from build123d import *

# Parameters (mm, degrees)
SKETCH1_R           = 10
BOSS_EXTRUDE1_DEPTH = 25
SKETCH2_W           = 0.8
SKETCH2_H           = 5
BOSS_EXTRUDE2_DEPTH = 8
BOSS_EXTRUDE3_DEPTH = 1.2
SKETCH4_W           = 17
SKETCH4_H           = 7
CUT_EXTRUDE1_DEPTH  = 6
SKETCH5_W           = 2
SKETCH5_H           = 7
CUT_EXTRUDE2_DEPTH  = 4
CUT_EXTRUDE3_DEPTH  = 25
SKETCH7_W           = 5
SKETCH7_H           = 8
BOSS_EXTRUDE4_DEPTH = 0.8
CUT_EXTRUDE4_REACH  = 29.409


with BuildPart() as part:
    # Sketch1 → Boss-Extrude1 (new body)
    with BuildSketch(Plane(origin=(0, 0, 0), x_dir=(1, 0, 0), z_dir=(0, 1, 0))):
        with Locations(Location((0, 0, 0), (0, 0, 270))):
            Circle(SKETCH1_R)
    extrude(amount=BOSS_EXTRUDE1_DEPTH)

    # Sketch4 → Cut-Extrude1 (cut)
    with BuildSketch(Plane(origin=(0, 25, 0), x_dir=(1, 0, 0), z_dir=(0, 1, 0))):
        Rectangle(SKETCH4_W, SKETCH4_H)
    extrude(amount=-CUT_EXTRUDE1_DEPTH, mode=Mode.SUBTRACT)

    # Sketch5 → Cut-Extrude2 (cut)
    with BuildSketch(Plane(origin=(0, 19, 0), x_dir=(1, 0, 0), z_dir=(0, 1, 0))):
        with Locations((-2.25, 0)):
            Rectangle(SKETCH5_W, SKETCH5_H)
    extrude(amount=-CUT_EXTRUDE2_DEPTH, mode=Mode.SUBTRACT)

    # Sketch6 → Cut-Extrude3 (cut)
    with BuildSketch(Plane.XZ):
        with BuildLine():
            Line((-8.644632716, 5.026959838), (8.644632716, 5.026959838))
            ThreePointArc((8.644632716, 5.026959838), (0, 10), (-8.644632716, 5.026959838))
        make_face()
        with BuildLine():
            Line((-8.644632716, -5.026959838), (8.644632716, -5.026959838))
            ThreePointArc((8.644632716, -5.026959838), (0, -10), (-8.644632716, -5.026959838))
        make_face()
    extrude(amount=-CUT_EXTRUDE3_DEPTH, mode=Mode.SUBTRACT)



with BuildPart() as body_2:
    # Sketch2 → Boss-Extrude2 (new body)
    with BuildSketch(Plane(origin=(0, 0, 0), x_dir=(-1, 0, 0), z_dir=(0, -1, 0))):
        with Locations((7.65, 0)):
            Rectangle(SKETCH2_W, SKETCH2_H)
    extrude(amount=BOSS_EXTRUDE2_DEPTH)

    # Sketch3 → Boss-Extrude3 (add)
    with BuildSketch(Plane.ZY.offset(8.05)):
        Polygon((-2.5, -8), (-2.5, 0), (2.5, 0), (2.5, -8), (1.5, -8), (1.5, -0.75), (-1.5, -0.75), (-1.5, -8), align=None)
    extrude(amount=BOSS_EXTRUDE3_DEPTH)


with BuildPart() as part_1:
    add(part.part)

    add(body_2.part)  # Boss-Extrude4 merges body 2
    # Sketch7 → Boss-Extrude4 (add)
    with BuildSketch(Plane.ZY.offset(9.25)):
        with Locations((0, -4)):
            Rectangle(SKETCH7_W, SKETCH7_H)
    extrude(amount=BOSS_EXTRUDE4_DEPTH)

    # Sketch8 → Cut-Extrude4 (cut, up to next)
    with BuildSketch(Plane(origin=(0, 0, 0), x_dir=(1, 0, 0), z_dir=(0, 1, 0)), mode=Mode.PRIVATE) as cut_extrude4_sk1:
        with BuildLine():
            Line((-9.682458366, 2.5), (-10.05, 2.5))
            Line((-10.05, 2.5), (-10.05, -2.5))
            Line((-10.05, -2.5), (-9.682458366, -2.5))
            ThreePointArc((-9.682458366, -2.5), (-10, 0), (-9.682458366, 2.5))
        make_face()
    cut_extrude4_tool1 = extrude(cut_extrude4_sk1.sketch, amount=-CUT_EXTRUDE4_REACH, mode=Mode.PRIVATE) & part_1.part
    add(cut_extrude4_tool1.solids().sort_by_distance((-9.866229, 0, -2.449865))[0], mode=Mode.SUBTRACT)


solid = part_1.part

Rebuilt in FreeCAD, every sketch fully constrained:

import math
import FreeCAD as App
import Part
import Sketcher
Q = App.Units.Quantity


def add_polygon(sketch, points):
    """Adds a closed chain of lines whose ends are joined by coincident constraints."""
    first, n = sketch.GeometryCount, len(points)
    for a, b in zip(points, points[1:] + points[:1]):
        sketch.addGeometry(Part.LineSegment(App.Vector(*a, 0), App.Vector(*b, 0)), False)
    for i in range(n):
        sketch.addConstraint(Sketcher.Constraint("Coincident", first + i, 2, first + (i + 1) % n, 1))

doc = App.newDocument("Part")
body = doc.addObject("PartDesign::Body", "Body")

sketch1 = body.newObject("Sketcher::SketchObject", "Sketch")
sketch1.AttachmentSupport = (doc.getObject("XZ_Plane"), [""])
sketch1.MapMode = "FlatFace"
sketch1.addGeometry(Part.Circle(App.Vector(0, 0, 0), App.Vector(0, 0, 1), 10), False)
sketch1.addConstraint(Sketcher.Constraint("Coincident", 0, 3, -1, 1))
sketch1.addConstraint(Sketcher.Constraint("Diameter", 0, Q("20 mm")))
pad1 = body.newObject("PartDesign::Pad", "Pad")
pad1.Profile = sketch1
pad1.Length = 25
pad1.Reversed = True

sketch2 = body.newObject("Sketcher::SketchObject", "Sketch001")
sketch2.AttachmentSupport = (doc.getObject("XZ_Plane"), [""])
sketch2.MapMode = "FlatFace"
sketch2.AttachmentOffset = App.Placement(App.Vector(0, 0, -25), App.Rotation())
add_polygon(sketch2, [(-8.5, -3.5), (-8.5, 3.5), (8.5, 3.5), (8.5, -3.5)])
sketch2.addConstraint(Sketcher.Constraint("Vertical", 0))
sketch2.addConstraint(Sketcher.Constraint("Horizontal", 1))
sketch2.addConstraint(Sketcher.Constraint("Vertical", 2))
sketch2.addConstraint(Sketcher.Constraint("Horizontal", 3))
sketch2.addConstraint(Sketcher.Constraint("Symmetric", 0, 2, 2, 2, -1, 1))
sketch2.addConstraint(Sketcher.Constraint("DistanceX", 1, 1, 1, 2, Q("17 mm")))
sketch2.addConstraint(Sketcher.Constraint("DistanceY", 0, 1, 0, 2, Q("7 mm")))
pocket1 = body.newObject("PartDesign::Pocket", "Pocket")
pocket1.Profile = sketch2
pocket1.Length = 6
pocket1.Reversed = True

sketch3 = body.newObject("Sketcher::SketchObject", "Sketch002")
sketch3.AttachmentSupport = (doc.getObject("XZ_Plane"), [""])
sketch3.MapMode = "FlatFace"
sketch3.AttachmentOffset = App.Placement(App.Vector(0, 0, -19), App.Rotation())
add_polygon(sketch3, [(-3.25, -3.5), (-3.25, 3.5), (-1.25, 3.5), (-1.25, -3.5)])
sketch3.addConstraint(Sketcher.Constraint("Vertical", 0))
sketch3.addConstraint(Sketcher.Constraint("Horizontal", 1))
sketch3.addConstraint(Sketcher.Constraint("Vertical", 2))
sketch3.addConstraint(Sketcher.Constraint("Horizontal", 3))
sketch3.addConstraint(Sketcher.Constraint("DistanceX", 1, 1, 1, 2, Q("2 mm")))
sketch3.addConstraint(Sketcher.Constraint("DistanceY", 0, 1, 0, 2, Q("7 mm")))
sketch3.addConstraint(Sketcher.Constraint("DistanceY", -1, 1, 0, 2, Q("3.5 mm")))
sketch3.addConstraint(Sketcher.Constraint("DistanceX", 0, 2, -1, 1, Q("3.25 mm")))
pocket2 = body.newObject("PartDesign::Pocket", "Pocket001")
pocket2.Profile = sketch3
pocket2.Length = 4
pocket2.Reversed = True

sketch4 = body.newObject("Sketcher::SketchObject", "Sketch003")
sketch4.AttachmentSupport = (doc.getObject("XZ_Plane"), [""])
sketch4.MapMode = "FlatFace"
sketch4.addGeometry(Part.LineSegment(App.Vector(-8.644633, 5.02696, 0), App.Vector(8.644633, 5.02696, 0)), False)
sketch4.addGeometry(Part.ArcOfCircle(Part.Circle(App.Vector(0, 0, 0), App.Vector(0, 0, 1), 10), math.radians(30.178526), math.radians(149.821474)), False)
sketch4.addGeometry(Part.LineSegment(App.Vector(8.644633, -5.02696, 0), App.Vector(-8.644633, -5.02696, 0)), False)
sketch4.addGeometry(Part.ArcOfCircle(Part.Circle(App.Vector(0, 0, 0), App.Vector(0, 0, 1), 10), math.radians(-149.821474), math.radians(-30.178526)), False)
sketch4.addConstraint(Sketcher.Constraint("Coincident", 0, 1, 1, 2))
sketch4.addConstraint(Sketcher.Constraint("Coincident", 1, 1, 0, 2))
sketch4.addConstraint(Sketcher.Constraint("Coincident", 2, 1, 3, 2))
sketch4.addConstraint(Sketcher.Constraint("Coincident", 3, 1, 2, 2))
sketch4.addConstraint(Sketcher.Constraint("Horizontal", 0))
sketch4.addConstraint(Sketcher.Constraint("Horizontal", 2))
sketch4.addConstraint(Sketcher.Constraint("Coincident", 1, 3, -1, 1))
sketch4.addConstraint(Sketcher.Constraint("Coincident", 3, 3, -1, 1))
sketch4.addConstraint(Sketcher.Constraint("Equal", 1, 3))
sketch4.addConstraint(Sketcher.Constraint("Vertical", 1, 1, 2, 1))
sketch4.addConstraint(Sketcher.Constraint("Radius", 1, Q("10 mm")))
sketch4.addConstraint(Sketcher.Constraint("DistanceX", 0, 1, 0, 2, Q("17.289265 mm")))
pocket3 = body.newObject("PartDesign::Pocket", "Pocket002")
pocket3.Profile = sketch4
pocket3.Length = 25
body2 = doc.addObject("PartDesign::Body", "Body001")

sketch5 = body2.newObject("Sketcher::SketchObject", "Sketch004")
sketch5.AttachmentSupport = (doc.getObject("XZ_Plane001"), [""])
sketch5.MapMode = "FlatFace"
add_polygon(sketch5, [(-7.25, -2.5), (-7.25, 2.5), (-8.05, 2.5), (-8.05, -2.5)])
sketch5.addConstraint(Sketcher.Constraint("Vertical", 0))
sketch5.addConstraint(Sketcher.Constraint("Horizontal", 1))
sketch5.addConstraint(Sketcher.Constraint("Vertical", 2))
sketch5.addConstraint(Sketcher.Constraint("Horizontal", 3))
sketch5.addConstraint(Sketcher.Constraint("DistanceY", 0, 1, 0, 2, Q("5 mm")))
sketch5.addConstraint(Sketcher.Constraint("DistanceX", 1, 2, 1, 1, Q("0.8 mm")))
sketch5.addConstraint(Sketcher.Constraint("DistanceY", -1, 1, 0, 2, Q("2.5 mm")))
sketch5.addConstraint(Sketcher.Constraint("DistanceX", 0, 2, -1, 1, Q("7.25 mm")))
pad2 = body2.newObject("PartDesign::Pad", "Pad001")
pad2.Profile = sketch5
pad2.Length = 8

sketch6 = body2.newObject("Sketcher::SketchObject", "Sketch005")
sketch6.AttachmentSupport = (doc.getObject("YZ_Plane001"), [""])
sketch6.MapMode = "FlatFace"
sketch6.AttachmentOffset = App.Placement(App.Vector(0, 0, -8.05), App.Rotation())
add_polygon(sketch6, [(0, -2.5), (-8, -2.5), (-8, -1.5), (-0.75, -1.5), (-0.75, 1.5), (-8, 1.5), (-8, 2.5), (0, 2.5)])
sketch6.addConstraint(Sketcher.Constraint("Horizontal", 0))
sketch6.addConstraint(Sketcher.Constraint("Vertical", 1))
sketch6.addConstraint(Sketcher.Constraint("Horizontal", 2))
sketch6.addConstraint(Sketcher.Constraint("Vertical", 3))
sketch6.addConstraint(Sketcher.Constraint("Horizontal", 4))
sketch6.addConstraint(Sketcher.Constraint("Vertical", 5))
sketch6.addConstraint(Sketcher.Constraint("Horizontal", 6))
sketch6.addConstraint(Sketcher.Constraint("Vertical", 7))
sketch6.addConstraint(Sketcher.Constraint("Symmetric", 6, 2, 7, 2, -1, 1))
sketch6.addConstraint(Sketcher.Constraint("Symmetric", 1, 2, 4, 2, -1))
sketch6.addConstraint(Sketcher.Constraint("DistanceX", 0, 2, 0, 1, Q("8 mm")))
sketch6.addConstraint(Sketcher.Constraint("DistanceY", 1, 1, 1, 2, Q("1 mm")))
sketch6.addConstraint(Sketcher.Constraint("DistanceY", 3, 1, 3, 2, Q("3 mm")))
sketch6.addConstraint(Sketcher.Constraint("DistanceX", 2, 1, 2, 2, Q("7.25 mm")))
pad3 = body2.newObject("PartDesign::Pad", "Pad002")
pad3.Profile = sketch6
pad3.Length = 1.2
pad3.Reversed = True
doc.recompute()

boolean = body.newObject("PartDesign::Boolean", "Boolean")
boolean.Type = "Fuse"
boolean.addObjects([body2])

sketch7 = body.newObject("Sketcher::SketchObject", "Sketch006")
sketch7.AttachmentSupport = (doc.getObject("YZ_Plane"), [""])
sketch7.MapMode = "FlatFace"
sketch7.AttachmentOffset = App.Placement(App.Vector(0, 0, -9.25), App.Rotation())
add_polygon(sketch7, [(0, -2.5), (-8, -2.5), (-8, 2.5), (0, 2.5)])
sketch7.addConstraint(Sketcher.Constraint("Horizontal", 0))
sketch7.addConstraint(Sketcher.Constraint("Vertical", 1))
sketch7.addConstraint(Sketcher.Constraint("Horizontal", 2))
sketch7.addConstraint(Sketcher.Constraint("Vertical", 3))
sketch7.addConstraint(Sketcher.Constraint("Symmetric", 2, 2, 3, 2, -1, 1))
sketch7.addConstraint(Sketcher.Constraint("DistanceX", 0, 2, 0, 1, Q("8 mm")))
sketch7.addConstraint(Sketcher.Constraint("DistanceY", 1, 1, 1, 2, Q("5 mm")))
pad4 = body.newObject("PartDesign::Pad", "Pad003")
pad4.Profile = sketch7
pad4.Length = 0.8
pad4.Reversed = True

sketch8 = body.newObject("Sketcher::SketchObject", "Sketch007")
sketch8.AttachmentSupport = (doc.getObject("XZ_Plane"), [""])
sketch8.MapMode = "FlatFace"
sketch8.addGeometry(Part.LineSegment(App.Vector(-9.682458, -2.5, 0), App.Vector(-10.05, -2.5, 0)), False)
sketch8.addGeometry(Part.LineSegment(App.Vector(-10.05, -2.5, 0), App.Vector(-10.05, 2.5, 0)), False)
sketch8.addGeometry(Part.LineSegment(App.Vector(-10.05, 2.5, 0), App.Vector(-9.682458, 2.5, 0)), False)
sketch8.addGeometry(Part.ArcOfCircle(Part.Circle(App.Vector(0, 0, 0), App.Vector(0, 0, 1), 10), math.radians(165.522488), math.radians(194.477512)), False)
sketch8.addConstraint(Sketcher.Constraint("Coincident", 0, 2, 1, 1))
sketch8.addConstraint(Sketcher.Constraint("Coincident", 1, 2, 2, 1))
sketch8.addConstraint(Sketcher.Constraint("Coincident", 2, 2, 3, 1))
sketch8.addConstraint(Sketcher.Constraint("Coincident", 3, 2, 0, 1))
sketch8.addConstraint(Sketcher.Constraint("Horizontal", 0))
sketch8.addConstraint(Sketcher.Constraint("Vertical", 1))
sketch8.addConstraint(Sketcher.Constraint("Horizontal", 2))
sketch8.addConstraint(Sketcher.Constraint("Coincident", 3, 3, -1, 1))
sketch8.addConstraint(Sketcher.Constraint("Vertical", 2, 2, 3, 2))
sketch8.addConstraint(Sketcher.Constraint("Radius", 3, Q("10 mm")))
sketch8.addConstraint(Sketcher.Constraint("DistanceY", 1, 1, 1, 2, Q("5 mm")))
sketch8.addConstraint(Sketcher.Constraint("DistanceX", 0, 2, -1, 1, Q("10.05 mm")))
pocket4 = body.newObject("PartDesign::Pocket", "Pocket003")
pocket4.Profile = sketch8
pocket4.Type = "UpToFirst"
pocket4.Reversed = True

doc.recompute()
